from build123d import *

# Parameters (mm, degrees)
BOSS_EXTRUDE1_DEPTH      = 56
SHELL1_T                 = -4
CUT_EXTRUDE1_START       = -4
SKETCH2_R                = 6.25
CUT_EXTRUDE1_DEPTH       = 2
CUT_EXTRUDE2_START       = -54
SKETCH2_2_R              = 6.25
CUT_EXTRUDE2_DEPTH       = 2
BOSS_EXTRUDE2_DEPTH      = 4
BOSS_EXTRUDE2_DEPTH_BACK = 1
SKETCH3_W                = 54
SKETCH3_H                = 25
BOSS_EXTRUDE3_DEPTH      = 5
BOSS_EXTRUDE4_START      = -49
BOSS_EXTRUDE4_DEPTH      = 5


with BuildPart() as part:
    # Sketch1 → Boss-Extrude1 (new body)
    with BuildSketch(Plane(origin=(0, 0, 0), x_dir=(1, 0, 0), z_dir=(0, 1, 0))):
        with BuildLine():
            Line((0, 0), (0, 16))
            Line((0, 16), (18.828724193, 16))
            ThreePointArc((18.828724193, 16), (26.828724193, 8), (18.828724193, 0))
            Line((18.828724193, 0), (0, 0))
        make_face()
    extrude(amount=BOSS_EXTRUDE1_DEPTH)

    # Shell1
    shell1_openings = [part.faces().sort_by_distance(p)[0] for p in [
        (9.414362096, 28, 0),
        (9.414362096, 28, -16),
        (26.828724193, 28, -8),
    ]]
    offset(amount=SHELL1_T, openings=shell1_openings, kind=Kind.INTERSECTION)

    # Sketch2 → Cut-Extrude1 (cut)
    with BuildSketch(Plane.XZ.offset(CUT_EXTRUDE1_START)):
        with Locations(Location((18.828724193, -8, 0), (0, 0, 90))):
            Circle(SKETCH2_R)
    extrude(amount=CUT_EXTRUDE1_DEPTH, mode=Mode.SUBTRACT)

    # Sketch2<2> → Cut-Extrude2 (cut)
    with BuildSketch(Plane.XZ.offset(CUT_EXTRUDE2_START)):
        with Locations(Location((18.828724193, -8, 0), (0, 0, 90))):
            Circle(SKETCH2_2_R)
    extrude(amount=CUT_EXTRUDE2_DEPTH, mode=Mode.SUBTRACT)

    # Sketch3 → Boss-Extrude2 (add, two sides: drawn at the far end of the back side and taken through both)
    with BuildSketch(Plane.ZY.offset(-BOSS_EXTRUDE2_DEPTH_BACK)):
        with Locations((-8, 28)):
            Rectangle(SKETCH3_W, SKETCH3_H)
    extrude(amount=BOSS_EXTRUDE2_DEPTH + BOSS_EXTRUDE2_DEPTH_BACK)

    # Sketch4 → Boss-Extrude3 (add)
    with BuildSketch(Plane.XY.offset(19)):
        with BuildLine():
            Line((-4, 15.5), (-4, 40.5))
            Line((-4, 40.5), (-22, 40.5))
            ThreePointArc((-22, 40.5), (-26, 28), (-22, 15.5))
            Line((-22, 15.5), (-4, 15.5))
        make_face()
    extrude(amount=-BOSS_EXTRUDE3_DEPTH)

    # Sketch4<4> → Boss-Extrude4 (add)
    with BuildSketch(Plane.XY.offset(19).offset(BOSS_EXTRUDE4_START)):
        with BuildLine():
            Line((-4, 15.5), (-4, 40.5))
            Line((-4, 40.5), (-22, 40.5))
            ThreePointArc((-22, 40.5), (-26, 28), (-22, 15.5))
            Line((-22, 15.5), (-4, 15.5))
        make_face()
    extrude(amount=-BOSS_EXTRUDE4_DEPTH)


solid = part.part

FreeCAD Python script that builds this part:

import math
import FreeCAD as App
import Part
import Sketcher
from FreeCAD import Vector
Q = App.Units.Quantity


def faces_at(feature, points):
    """Names of the faces that lie closest to the given points."""
    faces = feature.Shape.Faces
    near = lambda p: min(range(len(faces)), key=lambda i: faces[i].distToShape(Part.Vertex(*p))[0])
    return sorted({f"Face{near(p) + 1}" for p in points})


def add_polygon(sketch, points):
    """Adds a closed chain of lines whose ends are joined by coincident constraints."""
    first, n = sketch.GeometryCount, len(points)
    for a, b in zip(points, points[1:] + points[:1]):
        sketch.addGeometry(Part.LineSegment(App.Vector(*a, 0), App.Vector(*b, 0)), False)
    for i in range(n):
        sketch.addConstraint(Sketcher.Constraint("Coincident", first + i, 2, first + (i + 1) % n, 1))

doc = App.newDocument("Part")
body = doc.addObject("PartDesign::Body", "Body")

# Sketch on XZ plane
sketch1 = doc.addObject("Sketcher::SketchObject", "Sketch")
body.addObject(sketch1)
sketch1.AttachmentSupport = (doc.XZ_Plane, [""])
sketch1.MapMode = "FlatFace"
sketch1.addGeometry(Part.LineSegment(Vector(0, -16, 0), Vector(0, 0, 0)), False)
sketch1.addGeometry(Part.LineSegment(Vector(0, 0, 0), Vector(19, 0, 0)), False)
sketch1.addGeometry(Part.ArcOfCircle(Part.Circle(Vector(19, -8, 0), Vector(0, 0, 1), 8), math.radians(-90), math.radians(90)), False)
sketch1.addGeometry(Part.LineSegment(Vector(19, -16, 0), Vector(0, -16, 0)), False)
sketch1.addConstraint(Sketcher.Constraint("Coincident", 0, 2, 1, 1))
sketch1.addConstraint(Sketcher.Constraint("Tangent", 1, 2, 2, 2))
sketch1.addConstraint(Sketcher.Constraint("Tangent", 2, 1, 3, 1))
sketch1.addConstraint(Sketcher.Constraint("Coincident", 3, 2, 0, 1))
sketch1.addConstraint(Sketcher.Constraint("Vertical", 0))
sketch1.addConstraint(Sketcher.Constraint("Horizontal", 1))
sketch1.addConstraint(Sketcher.Constraint("Horizontal", 3))
sketch1.addConstraint(Sketcher.Constraint("Coincident", 0, 2, -1, 1))
sketch1.addConstraint(Sketcher.Constraint("Radius", 2, Q("8 mm")))
sketch1.addConstraint(Sketcher.Constraint("DistanceX", 1, 1, 1, 2, Q("18.828724 mm")))
pad1 = doc.addObject("PartDesign::Pad", "Pad")
body.addObject(pad1)
pad1.Profile = sketch1
pad1.Length = 56
pad1.Reversed = True
doc.recompute()

thickness = doc.addObject("PartDesign::Thickness", "Thickness")
body.addObject(thickness)
thickness.Base = (pad1, faces_at(pad1, [(9.414, 28, 0), (9.414, 28, -16), (26.829, 28, -8)]))
thickness.Value = 4
thickness.Reversed = True
thickness.Join = "Intersection"

# Sketch on XZ plane
sketch2 = doc.addObject("Sketcher::SketchObject", "Sketch001")
body.addObject(sketch2)
sketch2.AttachmentSupport = (doc.XZ_Plane, [""])
sketch2.MapMode = "FlatFace"
sketch2.AttachmentOffset = App.Placement(Vector(0, 0, -4), App.Rotation())
sketch2.addGeometry(Part.Circle(Vector(19, -8, 0), Vector(0, 0, 1), 6), False)
sketch2.addConstraint(Sketcher.Constraint("Diameter", 0, Q("12.5 mm")))
sketch2.addConstraint(Sketcher.Constraint("DistanceY", 0, 3, -1, 1, Q("8 mm")))
sketch2.addConstraint(Sketcher.Constraint("DistanceX", -1, 1, 0, 3, Q("18.828724 mm")))
pocket1 = doc.addObject("PartDesign::Pocket", "Pocket")
body.addObject(pocket1)
pocket1.Profile = sketch2
pocket1.Length = 2
pocket1.Reversed = True

# Sketch on XZ plane
sketch3 = doc.addObject("Sketcher::SketchObject", "Sketch002")
body.addObject(sketch3)
sketch3.AttachmentSupport = (doc.XZ_Plane, [""])
sketch3.MapMode = "FlatFace"
sketch3.AttachmentOffset = App.Placement(Vector(0, 0, -54), App.Rotation())
sketch3.addGeometry(Part.Circle(Vector(19, -8, 0), Vector(0, 0, 1), 6), False)
sketch3.addConstraint(Sketcher.Constraint("Diameter", 0, Q("12.5 mm")))
sketch3.addConstraint(Sketcher.Constraint("DistanceY", 0, 3, -1, 1, Q("8 mm")))
sketch3.addConstraint(Sketcher.Constraint("DistanceX", -1, 1, 0, 3, Q("18.828724 mm")))
pocket2 = doc.addObject("PartDesign::Pocket", "Pocket001")
body.addObject(pocket2)
pocket2.Profile = sketch3
pocket2.Length = 2
pocket2.Reversed = True

# Sketch on YZ plane
sketch4 = doc.addObject("Sketcher::SketchObject", "Sketch003")
body.addObject(sketch4)
sketch4.AttachmentSupport = (doc.YZ_Plane, [""])
sketch4.MapMode = "FlatFace"
add_polygon(sketch4, [(40, -35), (16, -35), (16, 19), (40, 19)])  # lines 0-3
sketch4.addConstraint(Sketcher.Constraint("Horizontal", 0))
sketch4.addConstraint(Sketcher.Constraint("Vertical", 1))
sketch4.addConstraint(Sketcher.Constraint("Horizontal", 2))
sketch4.addConstraint(Sketcher.Constraint("Vertical", 3))
sketch4.addConstraint(Sketcher.Constraint("DistanceX", 0, 2, 0, 1, Q("25 mm")))
sketch4.addConstraint(Sketcher.Constraint("DistanceY", 1, 1, 1, 2, Q("54 mm")))
sketch4.addConstraint(Sketcher.Constraint("DistanceY", 0, 2, -1, 1, Q("35 mm")))
sketch4.addConstraint(Sketcher.Constraint("DistanceX", -1, 1, 0, 2, Q("15.5 mm")))
pad2 = doc.addObject("PartDesign::Pad", "Pad001")
body.addObject(pad2)
pad2.Profile = sketch4
pad2.Type = "TwoLengths"
pad2.Length = 4
pad2.Length2 = 1
pad2.Reversed = True

# Sketch on XY plane
sketch5 = doc.addObject("Sketcher::SketchObject", "Sketch004")
body.addObject(sketch5)
sketch5.AttachmentSupport = (doc.XY_Plane, [""])
sketch5.MapMode = "FlatFace"
sketch5.AttachmentOffset = App.Placement(Vector(0, 0, 19), App.Rotation())
sketch5.addGeometry(Part.LineSegment(Vector(-4, 16, 0), Vector(-4, 40, 0)), False)
sketch5.addGeometry(Part.LineSegment(Vector(-4, 40, 0), Vector(-22, 40, 0)), False)
sketch5.addGeometry(Part.ArcOfCircle(Part.Circle(Vector(-4, 28, 0), Vector(0, 0, 1), 22), math.radians(145), math.radians(215)), False)
sketch5.addGeometry(Part.LineSegment(Vector(-22, 16, 0), Vector(-4, 16, 0)), False)
sketch5.addConstraint(Sketcher.Constraint("Coincident", 0, 2, 1, 1))
sketch5.addConstraint(Sketcher.Constraint("Coincident", 1, 2, 2, 1))
sketch5.addConstraint(Sketcher.Constraint("Coincident", 2, 2, 3, 1))
sketch5.addConstraint(Sketcher.Constraint("Coincident", 3, 2, 0, 1))
sketch5.addConstraint(Sketcher.Constraint("Vertical", 0))
sketch5.addConstraint(Sketcher.Constraint("Horizontal", 1))
sketch5.addConstraint(Sketcher.Constraint("Horizontal", 3))
sketch5.addConstraint(Sketcher.Constraint("Vertical", 1, 2, 2, 2))
sketch5.addConstraint(Sketcher.Constraint("DistanceX", 1, 2, 1, 1, Q("18 mm")))
sketch5.addConstraint(Sketcher.Constraint("DistanceY", 0, 1, 0, 2, Q("25 mm")))
sketch5.addConstraint(Sketcher.Constraint("DistanceY", -1, 1, 2, 3, Q("28 mm")))
sketch5.addConstraint(Sketcher.Constraint("DistanceX", 0, 2, -1, 1, Q("4 mm")))
sketch5.addConstraint(Sketcher.Constraint("Radius", 2, Q("21.53125 mm")))
pad3 = doc.addObject("PartDesign::Pad", "Pad002")
body.addObject(pad3)
pad3.Profile = sketch5
pad3.Length = 5
pad3.Reversed = True

# Sketch on XY plane
sketch6 = doc.addObject("Sketcher::SketchObject", "Sketch005")
body.addObject(sketch6)
sketch6.AttachmentSupport = (doc.XY_Plane, [""])
sketch6.MapMode = "FlatFace"
sketch6.AttachmentOffset = App.Placement(Vector(0, 0, -30), App.Rotation())
sketch6.addGeometry(Part.LineSegment(Vector(-4, 16, 0), Vector(-4, 40, 0)), False)
sketch6.addGeometry(Part.LineSegment(Vector(-4, 40, 0), Vector(-22, 40, 0)), False)
sketch6.addGeometry(Part.ArcOfCircle(Part.Circle(Vector(-4, 28, 0), Vector(0, 0, 1), 22), math.radians(145), math.radians(215)), False)
sketch6.addGeometry(Part.LineSegment(Vector(-22, 16, 0), Vector(-4, 16, 0)), False)
sketch6.addConstraint(Sketcher.Constraint("Coincident", 0, 2, 1, 1))
sketch6.addConstraint(Sketcher.Constraint("Coincident", 1, 2, 2, 1))
sketch6.addConstraint(Sketcher.Constraint("Coincident", 2, 2, 3, 1))
sketch6.addConstraint(Sketcher.Constraint("Coincident", 3, 2, 0, 1))
sketch6.addConstraint(Sketcher.Constraint("Vertical", 0))
sketch6.addConstraint(Sketcher.Constraint("Horizontal", 1))
sketch6.addConstraint(Sketcher.Constraint("Horizontal", 3))
sketch6.addConstraint(Sketcher.Constraint("Vertical", 1, 2, 2, 2))
sketch6.addConstraint(Sketcher.Constraint("DistanceX", 1, 2, 1, 1, Q("18 mm")))
sketch6.addConstraint(Sketcher.Constraint("DistanceY", 0, 1, 0, 2, Q("25 mm")))
sketch6.addConstraint(Sketcher.Constraint("DistanceY", -1, 1, 2, 3, Q("28 mm")))
sketch6.addConstraint(Sketcher.Constraint("DistanceX", 0, 2, -1, 1, Q("4 mm")))
sketch6.addConstraint(Sketcher.Constraint("Radius", 2, Q("21.53125 mm")))
pad4 = doc.addObject("PartDesign::Pad", "Pad003")
body.addObject(pad4)
pad4.Profile = sketch6
pad4.Length = 5
pad4.Reversed = True

doc.recompute()
